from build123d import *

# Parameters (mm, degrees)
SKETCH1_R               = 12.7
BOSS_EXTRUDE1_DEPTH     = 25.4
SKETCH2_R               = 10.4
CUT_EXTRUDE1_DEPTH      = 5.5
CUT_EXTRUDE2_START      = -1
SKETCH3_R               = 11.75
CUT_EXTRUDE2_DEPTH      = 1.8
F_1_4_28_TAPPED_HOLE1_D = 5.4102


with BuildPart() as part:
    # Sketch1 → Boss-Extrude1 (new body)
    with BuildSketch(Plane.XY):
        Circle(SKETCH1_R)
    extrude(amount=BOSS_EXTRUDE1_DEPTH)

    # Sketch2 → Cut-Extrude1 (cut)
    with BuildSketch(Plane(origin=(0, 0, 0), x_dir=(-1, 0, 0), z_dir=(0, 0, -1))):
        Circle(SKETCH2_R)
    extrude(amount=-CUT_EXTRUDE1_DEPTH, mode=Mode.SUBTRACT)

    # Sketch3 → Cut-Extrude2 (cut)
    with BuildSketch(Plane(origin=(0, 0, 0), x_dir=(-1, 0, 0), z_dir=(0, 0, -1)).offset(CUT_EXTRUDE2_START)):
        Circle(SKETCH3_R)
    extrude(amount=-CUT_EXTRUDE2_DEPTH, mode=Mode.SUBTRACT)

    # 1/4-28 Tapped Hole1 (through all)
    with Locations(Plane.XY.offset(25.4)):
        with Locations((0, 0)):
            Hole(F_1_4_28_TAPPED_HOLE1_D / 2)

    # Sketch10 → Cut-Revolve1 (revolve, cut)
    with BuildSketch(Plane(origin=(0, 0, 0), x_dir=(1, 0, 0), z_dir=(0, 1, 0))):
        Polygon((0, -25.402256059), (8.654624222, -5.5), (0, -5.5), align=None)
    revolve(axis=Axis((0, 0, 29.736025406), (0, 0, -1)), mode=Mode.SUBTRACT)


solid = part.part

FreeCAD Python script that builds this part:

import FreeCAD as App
import Part
import Sketcher
Q = App.Units.Quantity

doc = App.newDocument("Part")
params = doc.addObject("Spreadsheet::Sheet", "Params")
for row, (alias, value) in enumerate([
    ("sketch1_diameter", "25.4 mm"),
    ("pad1_length", "25.4 mm"),
    ("sketch2_diameter", "20.8 mm"),
    ("pocket1_length", "5.5 mm"),
    ("sketch3_diameter", "23.5 mm"),
    ("pocket2_length", "1.8 mm"),
    ("hole_diameter", "5.4102 mm"),
    ("groove_angle", "360 deg"),
], start=1):
    params.set(f"A{row}", alias)
    params.set(f"B{row}", "=" + value)
    params.setAlias(f"B{row}", alias)

body = doc.addObject("PartDesign::Body", "Body")

# Sketch on XY plane
sketch1 = body.newObject("Sketcher::SketchObject", "Sketch")
sketch1.AttachmentSupport = (doc.getObject("XY_Plane"), [""])
sketch1.MapMode = "FlatFace"
sketch1.addGeometry(Part.Circle(App.Vector(0, 0, 0), App.Vector(0, 0, 1), 12.7), False)
sketch1.addConstraint([
    Sketcher.Constraint("Coincident", 0, 3, -1, 1),
    Sketcher.Constraint("Diameter", 0, Q("25.4 mm")),
])
sketch1.setExpression("Constraints[1]", "Params.sketch1_diameter")
pad1 = body.newObject("PartDesign::Pad", "Pad")
pad1.Profile = sketch1
pad1.setExpression("Length", "Params.pad1_length")

# Sketch on XY plane
sketch2 = body.newObject("Sketcher::SketchObject", "Sketch001")
sketch2.AttachmentSupport = (doc.getObject("XY_Plane"), [""])
sketch2.MapMode = "FlatFace"
sketch2.addGeometry(Part.Circle(App.Vector(0, 0, 0), App.Vector(0, 0, 1), 10.4), False)
sketch2.addConstraint([
    Sketcher.Constraint("Coincident", 0, 3, -1, 1),
    Sketcher.Constraint("Diameter", 0, Q("20.8 mm")),
])
sketch2.setExpression("Constraints[1]", "Params.sketch2_diameter")
pocket1 = body.newObject("PartDesign::Pocket", "Pocket")
pocket1.Profile = sketch2
pocket1.setExpression("Length", "Params.pocket1_length")
pocket1.Reversed = True

# Sketch on XY plane
sketch3 = body.newObject("Sketcher::SketchObject", "Sketch002")
sketch3.AttachmentSupport = (doc.getObject("XY_Plane"), [""])
sketch3.MapMode = "FlatFace"
sketch3.AttachmentOffset = App.Placement(App.Vector(0, 0, 1), App.Rotation())
sketch3.addGeometry(Part.Circle(App.Vector(0, 0, 0), App.Vector(0, 0, 1), 11.75), False)
sketch3.addConstraint([
    Sketcher.Constraint("Coincident", 0, 3, -1, 1),
    Sketcher.Constraint("Diameter", 0, Q("23.5 mm")),
])
sketch3.setExpression("Constraints[1]", "Params.sketch3_diameter")
pocket2 = body.newObject("PartDesign::Pocket", "Pocket001")
pocket2.Profile = sketch3
pocket2.setExpression("Length", "Params.pocket2_length")
pocket2.Reversed = True

# Sketch on XY plane
sketch4 = body.newObject("Sketcher::SketchObject", "Sketch003")
sketch4.AttachmentSupport = (doc.getObject("XY_Plane"), [""])
sketch4.MapMode = "FlatFace"
sketch4.AttachmentOffset = App.Placement(App.Vector(0, 0, 25.4), App.Rotation())
sketch4.addGeometry(Part.Circle(App.Vector(0, 0, 0), App.Vector(0, 0, 1), 2.7051), False)
sketch4.addConstraint([
    Sketcher.Constraint("Coincident", 0, 3, -1, 1),
    Sketcher.Constraint("Diameter", 0, Q("5.4102 mm")),
])
doc.recompute()
hole = body.newObject("PartDesign::Hole", "Hole")
hole.Profile = sketch4
hole.ThreadType = "None"
hole.setExpression("Diameter", "Params.hole_diameter")
hole.DepthType = "ThroughAll"

# Sketch on XZ plane
sketch5 = body.newObject("Sketcher::SketchObject", "Sketch004")
sketch5.AttachmentSupport = (doc.getObject("XZ_Plane"), [""])
sketch5.MapMode = "FlatFace"
sketch5.addGeometry([
    Part.LineSegment(App.Vector(0, 25.402256, 0), App.Vector(8.654624, 5.5, 0)),
    Part.LineSegment(App.Vector(8.654624, 5.5, 0), App.Vector(0, 5.5, 0)),
    Part.LineSegment(App.Vector(0, 5.5, 0), App.Vector(0, 25.402256, 0)),
], False)
sketch5.addConstraint([
    Sketcher.Constraint("Coincident", 0, 2, 1, 1),
    Sketcher.Constraint("Coincident", 1, 2, 2, 1),
    Sketcher.Constraint("Coincident", 2, 2, 0, 1),
    Sketcher.Constraint("Horizontal", 1),
    Sketcher.Constraint("Vertical", 2),
    Sketcher.Constraint("PointOnObject", 1, 2, -2),
    Sketcher.Constraint("DistanceY", -1, 1, 0, 2, Q("5.5 mm")),
    Sketcher.Constraint("DistanceX", 1, 2, 1, 1, Q("8.654624 mm")),
    Sketcher.Constraint("DistanceY", 2, 1, 2, 2, Q("19.902256 mm")),
])
groove = body.newObject("PartDesign::Groove", "Groove")
groove.Profile = sketch5
groove.ReferenceAxis = (sketch5, ["V_Axis"])
groove.setExpression("Angle", "Params.groove_angle")

doc.recompute()
